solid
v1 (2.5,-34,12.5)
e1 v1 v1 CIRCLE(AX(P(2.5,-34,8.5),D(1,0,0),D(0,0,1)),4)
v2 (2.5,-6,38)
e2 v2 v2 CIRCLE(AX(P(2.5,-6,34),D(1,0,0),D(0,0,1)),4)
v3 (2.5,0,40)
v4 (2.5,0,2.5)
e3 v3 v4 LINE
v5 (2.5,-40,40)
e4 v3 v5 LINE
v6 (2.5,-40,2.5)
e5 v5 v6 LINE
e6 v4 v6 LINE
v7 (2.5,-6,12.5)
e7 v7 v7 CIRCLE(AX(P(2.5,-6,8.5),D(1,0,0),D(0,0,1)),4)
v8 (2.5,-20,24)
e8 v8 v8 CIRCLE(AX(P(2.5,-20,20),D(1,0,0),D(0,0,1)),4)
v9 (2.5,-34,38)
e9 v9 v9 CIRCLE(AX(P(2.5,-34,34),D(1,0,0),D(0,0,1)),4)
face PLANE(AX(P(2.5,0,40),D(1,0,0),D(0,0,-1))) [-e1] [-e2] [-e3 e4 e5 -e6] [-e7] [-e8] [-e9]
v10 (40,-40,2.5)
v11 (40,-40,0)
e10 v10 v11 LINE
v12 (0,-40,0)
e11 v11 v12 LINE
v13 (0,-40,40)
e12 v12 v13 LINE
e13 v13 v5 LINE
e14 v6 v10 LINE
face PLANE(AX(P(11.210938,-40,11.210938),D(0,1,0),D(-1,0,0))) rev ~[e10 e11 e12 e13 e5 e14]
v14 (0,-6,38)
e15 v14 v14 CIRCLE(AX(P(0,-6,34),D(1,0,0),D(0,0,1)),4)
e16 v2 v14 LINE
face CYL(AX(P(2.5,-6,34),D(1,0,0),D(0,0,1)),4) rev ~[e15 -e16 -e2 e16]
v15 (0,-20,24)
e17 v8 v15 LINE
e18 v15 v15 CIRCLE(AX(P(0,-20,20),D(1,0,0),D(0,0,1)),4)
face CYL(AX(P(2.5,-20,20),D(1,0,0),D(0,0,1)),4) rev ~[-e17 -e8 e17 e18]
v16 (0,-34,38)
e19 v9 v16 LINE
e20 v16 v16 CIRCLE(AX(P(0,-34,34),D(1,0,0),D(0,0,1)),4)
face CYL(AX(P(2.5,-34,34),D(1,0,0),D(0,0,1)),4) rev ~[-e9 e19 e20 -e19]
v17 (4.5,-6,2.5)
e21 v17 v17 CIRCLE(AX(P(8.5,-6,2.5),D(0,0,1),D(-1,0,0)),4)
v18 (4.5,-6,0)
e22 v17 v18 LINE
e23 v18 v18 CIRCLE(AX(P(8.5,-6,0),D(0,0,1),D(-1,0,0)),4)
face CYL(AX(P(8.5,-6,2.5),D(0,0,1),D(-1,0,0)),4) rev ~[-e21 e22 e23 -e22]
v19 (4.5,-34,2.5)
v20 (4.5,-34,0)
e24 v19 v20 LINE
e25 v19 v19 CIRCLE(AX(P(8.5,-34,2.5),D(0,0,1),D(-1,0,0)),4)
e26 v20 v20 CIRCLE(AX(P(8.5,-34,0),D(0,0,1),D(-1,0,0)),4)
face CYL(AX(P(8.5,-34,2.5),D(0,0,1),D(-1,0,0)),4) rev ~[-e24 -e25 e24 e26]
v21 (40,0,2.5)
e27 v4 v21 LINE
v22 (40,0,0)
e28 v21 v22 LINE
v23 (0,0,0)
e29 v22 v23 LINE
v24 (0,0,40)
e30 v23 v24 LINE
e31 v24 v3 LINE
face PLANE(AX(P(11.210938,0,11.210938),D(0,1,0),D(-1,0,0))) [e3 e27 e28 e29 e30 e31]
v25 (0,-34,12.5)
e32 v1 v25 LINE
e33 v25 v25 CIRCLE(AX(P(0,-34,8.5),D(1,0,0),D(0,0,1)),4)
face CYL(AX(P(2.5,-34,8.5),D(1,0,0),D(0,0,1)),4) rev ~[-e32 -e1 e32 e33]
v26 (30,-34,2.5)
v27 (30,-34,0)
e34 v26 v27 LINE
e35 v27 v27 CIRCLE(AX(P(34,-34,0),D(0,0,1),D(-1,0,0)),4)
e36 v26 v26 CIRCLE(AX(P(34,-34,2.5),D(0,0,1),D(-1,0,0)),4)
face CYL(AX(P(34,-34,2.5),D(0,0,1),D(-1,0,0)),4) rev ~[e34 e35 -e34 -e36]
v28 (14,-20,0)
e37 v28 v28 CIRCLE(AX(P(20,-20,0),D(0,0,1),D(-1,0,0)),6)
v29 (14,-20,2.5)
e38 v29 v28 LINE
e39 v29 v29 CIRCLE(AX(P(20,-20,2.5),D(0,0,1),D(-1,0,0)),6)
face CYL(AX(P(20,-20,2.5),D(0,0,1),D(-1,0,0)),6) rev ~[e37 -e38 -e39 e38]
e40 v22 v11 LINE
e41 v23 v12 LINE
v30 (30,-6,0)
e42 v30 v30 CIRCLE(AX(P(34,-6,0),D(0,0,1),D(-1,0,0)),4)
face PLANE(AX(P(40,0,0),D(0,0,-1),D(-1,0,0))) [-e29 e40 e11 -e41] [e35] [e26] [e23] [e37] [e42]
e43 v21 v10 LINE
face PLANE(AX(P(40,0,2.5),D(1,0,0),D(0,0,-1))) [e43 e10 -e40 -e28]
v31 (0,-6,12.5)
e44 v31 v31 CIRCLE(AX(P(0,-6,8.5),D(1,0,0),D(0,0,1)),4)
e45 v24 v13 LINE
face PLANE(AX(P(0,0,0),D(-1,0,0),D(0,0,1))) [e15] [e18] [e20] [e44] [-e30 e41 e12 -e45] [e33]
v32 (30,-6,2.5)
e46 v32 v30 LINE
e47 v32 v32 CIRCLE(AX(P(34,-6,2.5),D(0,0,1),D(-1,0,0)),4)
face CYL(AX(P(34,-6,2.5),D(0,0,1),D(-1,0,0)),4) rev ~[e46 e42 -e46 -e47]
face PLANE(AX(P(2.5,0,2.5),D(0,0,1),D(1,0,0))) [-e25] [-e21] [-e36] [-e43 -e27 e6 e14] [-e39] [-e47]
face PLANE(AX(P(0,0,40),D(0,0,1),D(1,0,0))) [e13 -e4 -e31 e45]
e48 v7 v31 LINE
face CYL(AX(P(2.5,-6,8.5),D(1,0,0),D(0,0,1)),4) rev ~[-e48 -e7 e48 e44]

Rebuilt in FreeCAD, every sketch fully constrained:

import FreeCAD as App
import Part
import Sketcher
from FreeCAD import Vector


def add_polygon(sketch, points):
    """Adds a closed chain of lines whose ends are joined by coincident constraints."""
    first, n = sketch.GeometryCount, len(points)
    for a, b in zip(points, points[1:] + points[:1]):
        sketch.addGeometry(Part.LineSegment(App.Vector(*a, 0), App.Vector(*b, 0)), False)
    for i in range(n):
        sketch.addConstraint(Sketcher.Constraint("Coincident", first + i, 2, first + (i + 1) % n, 1))

doc = App.newDocument("Part")
body = doc.addObject("PartDesign::Body", "Body")

# Sketch on XZ plane
sketch1 = body.newObject("Sketcher::SketchObject", "Sketch")
sketch1.AttachmentSupport = (doc.getObject("XZ_Plane"), [""])
sketch1.MapMode = "FlatFace"
add_polygon(sketch1, [(0, 40), (0, 0), (40, 0), (40, 2.5), (2.5, 2.5), (2.5, 40)])  # lines 0-5
sketch1.addConstraint([
    Sketcher.Constraint("Vertical", 0),
    Sketcher.Constraint("Horizontal", 1),
    Sketcher.Constraint("Vertical", 2),
    Sketcher.Constraint("Horizontal", 3),
    Sketcher.Constraint("Vertical", 4),
    Sketcher.Constraint("Horizontal", 5),
    Sketcher.Constraint("Coincident", 0, 2, -1, 1),
    Sketcher.Constraint("Equal", 1, 0),
    Sketcher.Constraint("Equal", 5, 2),
    Sketcher.Constraint("DistanceX", 1, 1, 1, 2, 40.0),
    Sketcher.Constraint("DistanceX", 3, 2, 3, 1, 37.5),
])
pad1 = body.newObject("PartDesign::Pad", "Pad")
pad1.Profile = sketch1
pad1.Length = 40

# Sketch on YZ plane
sketch2 = body.newObject("Sketcher::SketchObject", "Sketch001")
sketch2.AttachmentSupport = (doc.getObject("YZ_Plane"), [""])
sketch2.MapMode = "FlatFace"
sketch2.AttachmentOffset = App.Placement(Vector(0, 0, 2.5), App.Rotation())
sketch2.addGeometry([
    Part.Circle(Vector(-34, 8.5, 0), Vector(0, 0, 1), 4),  # 0
    Part.Circle(Vector(-34, 34, 0), Vector(0, 0, 1), 4),  # 1
    Part.Circle(Vector(-6, 8.5, 0), Vector(0, 0, 1), 4),  # 2
    Part.Circle(Vector(-6, 34, 0), Vector(0, 0, 1), 4),  # 3
    Part.Circle(Vector(-20, 20, 0), Vector(0, 0, 1), 4),  # 4
], False)
sketch2.addConstraint([
    Sketcher.Constraint("Equal", 0, 1),
    Sketcher.Constraint("Equal", 1, 2),
    Sketcher.Constraint("Equal", 2, 3),
    Sketcher.Constraint("Equal", 3, 4),
    Sketcher.Constraint("Horizontal", 0, 3, 2, 3),
    Sketcher.Constraint("Horizontal", 1, 3, 3, 3),
    Sketcher.Constraint("Vertical", 0, 3, 1, 3),
    Sketcher.Constraint("Vertical", 2, 3, 3, 3),
    Sketcher.Constraint("Diameter", 0, 8.0),
    Sketcher.Constraint("DistanceX", 0, 3, -1, 1, 34.0),
    Sketcher.Constraint("DistanceY", -1, 1, 1, 3, 34.0),
    Sketcher.Constraint("DistanceX", 2, 3, -1, 1, 6.0),
    Sketcher.Constraint("DistanceX", 4, 3, -1, 1, 20.0),
    Sketcher.Constraint("DistanceY", -1, 1, 4, 3, 20.0),
    Sketcher.Constraint("DistanceY", -1, 1, 0, 3, 8.5),
])
pocket1 = body.newObject("PartDesign::Pocket", "Pocket")
pocket1.Profile = sketch2
pocket1.Type = "ThroughAll"

# Sketch on XY plane
sketch3 = body.newObject("Sketcher::SketchObject", "Sketch002")
sketch3.AttachmentSupport = (doc.getObject("XY_Plane"), [""])
sketch3.MapMode = "FlatFace"
sketch3.AttachmentOffset = App.Placement(Vector(0, 0, 2.5), App.Rotation())
sketch3.addGeometry([
    Part.Circle(Vector(8.5, -6, 0), Vector(0, 0, 1), 4),  # 0
    Part.Circle(Vector(34, -6, 0), Vector(0, 0, 1), 4),  # 1
    Part.Circle(Vector(8.5, -34, 0), Vector(0, 0, 1), 4),  # 2
    Part.Circle(Vector(34, -34, 0), Vector(0, 0, 1), 4),  # 3
    Part.Circle(Vector(20, -20, 0), Vector(0, 0, 1), 6),  # 4
], False)
sketch3.addConstraint([
    Sketcher.Constraint("Equal", 0, 1),
    Sketcher.Constraint("Equal", 1, 2),
    Sketcher.Constraint("Equal", 2, 3),
    Sketcher.Constraint("Horizontal", 0, 3, 1, 3),
    Sketcher.Constraint("Horizontal", 2, 3, 3, 3),
    Sketcher.Constraint("Vertical", 0, 3, 2, 3),
    Sketcher.Constraint("Vertical", 1, 3, 3, 3),
    Sketcher.Constraint("Diameter", 0, 8.0),
    Sketcher.Constraint("Diameter", 4, 12.0),
    Sketcher.Constraint("DistanceY", 0, 3, -1, 1, 6.0),
    Sketcher.Constraint("DistanceX", -1, 1, 1, 3, 34.0),
    Sketcher.Constraint("DistanceY", 2, 3, -1, 1, 34.0),
    Sketcher.Constraint("DistanceX", -1, 1, 4, 3, 20.0),
    Sketcher.Constraint("DistanceY", 4, 3, -1, 1, 20.0),
    Sketcher.Constraint("DistanceX", -1, 1, 0, 3, 8.5),
])
pocket2 = body.newObject("PartDesign::Pocket", "Pocket001")
pocket2.Profile = sketch3
pocket2.Type = "ThroughAll"

doc.recompute()
